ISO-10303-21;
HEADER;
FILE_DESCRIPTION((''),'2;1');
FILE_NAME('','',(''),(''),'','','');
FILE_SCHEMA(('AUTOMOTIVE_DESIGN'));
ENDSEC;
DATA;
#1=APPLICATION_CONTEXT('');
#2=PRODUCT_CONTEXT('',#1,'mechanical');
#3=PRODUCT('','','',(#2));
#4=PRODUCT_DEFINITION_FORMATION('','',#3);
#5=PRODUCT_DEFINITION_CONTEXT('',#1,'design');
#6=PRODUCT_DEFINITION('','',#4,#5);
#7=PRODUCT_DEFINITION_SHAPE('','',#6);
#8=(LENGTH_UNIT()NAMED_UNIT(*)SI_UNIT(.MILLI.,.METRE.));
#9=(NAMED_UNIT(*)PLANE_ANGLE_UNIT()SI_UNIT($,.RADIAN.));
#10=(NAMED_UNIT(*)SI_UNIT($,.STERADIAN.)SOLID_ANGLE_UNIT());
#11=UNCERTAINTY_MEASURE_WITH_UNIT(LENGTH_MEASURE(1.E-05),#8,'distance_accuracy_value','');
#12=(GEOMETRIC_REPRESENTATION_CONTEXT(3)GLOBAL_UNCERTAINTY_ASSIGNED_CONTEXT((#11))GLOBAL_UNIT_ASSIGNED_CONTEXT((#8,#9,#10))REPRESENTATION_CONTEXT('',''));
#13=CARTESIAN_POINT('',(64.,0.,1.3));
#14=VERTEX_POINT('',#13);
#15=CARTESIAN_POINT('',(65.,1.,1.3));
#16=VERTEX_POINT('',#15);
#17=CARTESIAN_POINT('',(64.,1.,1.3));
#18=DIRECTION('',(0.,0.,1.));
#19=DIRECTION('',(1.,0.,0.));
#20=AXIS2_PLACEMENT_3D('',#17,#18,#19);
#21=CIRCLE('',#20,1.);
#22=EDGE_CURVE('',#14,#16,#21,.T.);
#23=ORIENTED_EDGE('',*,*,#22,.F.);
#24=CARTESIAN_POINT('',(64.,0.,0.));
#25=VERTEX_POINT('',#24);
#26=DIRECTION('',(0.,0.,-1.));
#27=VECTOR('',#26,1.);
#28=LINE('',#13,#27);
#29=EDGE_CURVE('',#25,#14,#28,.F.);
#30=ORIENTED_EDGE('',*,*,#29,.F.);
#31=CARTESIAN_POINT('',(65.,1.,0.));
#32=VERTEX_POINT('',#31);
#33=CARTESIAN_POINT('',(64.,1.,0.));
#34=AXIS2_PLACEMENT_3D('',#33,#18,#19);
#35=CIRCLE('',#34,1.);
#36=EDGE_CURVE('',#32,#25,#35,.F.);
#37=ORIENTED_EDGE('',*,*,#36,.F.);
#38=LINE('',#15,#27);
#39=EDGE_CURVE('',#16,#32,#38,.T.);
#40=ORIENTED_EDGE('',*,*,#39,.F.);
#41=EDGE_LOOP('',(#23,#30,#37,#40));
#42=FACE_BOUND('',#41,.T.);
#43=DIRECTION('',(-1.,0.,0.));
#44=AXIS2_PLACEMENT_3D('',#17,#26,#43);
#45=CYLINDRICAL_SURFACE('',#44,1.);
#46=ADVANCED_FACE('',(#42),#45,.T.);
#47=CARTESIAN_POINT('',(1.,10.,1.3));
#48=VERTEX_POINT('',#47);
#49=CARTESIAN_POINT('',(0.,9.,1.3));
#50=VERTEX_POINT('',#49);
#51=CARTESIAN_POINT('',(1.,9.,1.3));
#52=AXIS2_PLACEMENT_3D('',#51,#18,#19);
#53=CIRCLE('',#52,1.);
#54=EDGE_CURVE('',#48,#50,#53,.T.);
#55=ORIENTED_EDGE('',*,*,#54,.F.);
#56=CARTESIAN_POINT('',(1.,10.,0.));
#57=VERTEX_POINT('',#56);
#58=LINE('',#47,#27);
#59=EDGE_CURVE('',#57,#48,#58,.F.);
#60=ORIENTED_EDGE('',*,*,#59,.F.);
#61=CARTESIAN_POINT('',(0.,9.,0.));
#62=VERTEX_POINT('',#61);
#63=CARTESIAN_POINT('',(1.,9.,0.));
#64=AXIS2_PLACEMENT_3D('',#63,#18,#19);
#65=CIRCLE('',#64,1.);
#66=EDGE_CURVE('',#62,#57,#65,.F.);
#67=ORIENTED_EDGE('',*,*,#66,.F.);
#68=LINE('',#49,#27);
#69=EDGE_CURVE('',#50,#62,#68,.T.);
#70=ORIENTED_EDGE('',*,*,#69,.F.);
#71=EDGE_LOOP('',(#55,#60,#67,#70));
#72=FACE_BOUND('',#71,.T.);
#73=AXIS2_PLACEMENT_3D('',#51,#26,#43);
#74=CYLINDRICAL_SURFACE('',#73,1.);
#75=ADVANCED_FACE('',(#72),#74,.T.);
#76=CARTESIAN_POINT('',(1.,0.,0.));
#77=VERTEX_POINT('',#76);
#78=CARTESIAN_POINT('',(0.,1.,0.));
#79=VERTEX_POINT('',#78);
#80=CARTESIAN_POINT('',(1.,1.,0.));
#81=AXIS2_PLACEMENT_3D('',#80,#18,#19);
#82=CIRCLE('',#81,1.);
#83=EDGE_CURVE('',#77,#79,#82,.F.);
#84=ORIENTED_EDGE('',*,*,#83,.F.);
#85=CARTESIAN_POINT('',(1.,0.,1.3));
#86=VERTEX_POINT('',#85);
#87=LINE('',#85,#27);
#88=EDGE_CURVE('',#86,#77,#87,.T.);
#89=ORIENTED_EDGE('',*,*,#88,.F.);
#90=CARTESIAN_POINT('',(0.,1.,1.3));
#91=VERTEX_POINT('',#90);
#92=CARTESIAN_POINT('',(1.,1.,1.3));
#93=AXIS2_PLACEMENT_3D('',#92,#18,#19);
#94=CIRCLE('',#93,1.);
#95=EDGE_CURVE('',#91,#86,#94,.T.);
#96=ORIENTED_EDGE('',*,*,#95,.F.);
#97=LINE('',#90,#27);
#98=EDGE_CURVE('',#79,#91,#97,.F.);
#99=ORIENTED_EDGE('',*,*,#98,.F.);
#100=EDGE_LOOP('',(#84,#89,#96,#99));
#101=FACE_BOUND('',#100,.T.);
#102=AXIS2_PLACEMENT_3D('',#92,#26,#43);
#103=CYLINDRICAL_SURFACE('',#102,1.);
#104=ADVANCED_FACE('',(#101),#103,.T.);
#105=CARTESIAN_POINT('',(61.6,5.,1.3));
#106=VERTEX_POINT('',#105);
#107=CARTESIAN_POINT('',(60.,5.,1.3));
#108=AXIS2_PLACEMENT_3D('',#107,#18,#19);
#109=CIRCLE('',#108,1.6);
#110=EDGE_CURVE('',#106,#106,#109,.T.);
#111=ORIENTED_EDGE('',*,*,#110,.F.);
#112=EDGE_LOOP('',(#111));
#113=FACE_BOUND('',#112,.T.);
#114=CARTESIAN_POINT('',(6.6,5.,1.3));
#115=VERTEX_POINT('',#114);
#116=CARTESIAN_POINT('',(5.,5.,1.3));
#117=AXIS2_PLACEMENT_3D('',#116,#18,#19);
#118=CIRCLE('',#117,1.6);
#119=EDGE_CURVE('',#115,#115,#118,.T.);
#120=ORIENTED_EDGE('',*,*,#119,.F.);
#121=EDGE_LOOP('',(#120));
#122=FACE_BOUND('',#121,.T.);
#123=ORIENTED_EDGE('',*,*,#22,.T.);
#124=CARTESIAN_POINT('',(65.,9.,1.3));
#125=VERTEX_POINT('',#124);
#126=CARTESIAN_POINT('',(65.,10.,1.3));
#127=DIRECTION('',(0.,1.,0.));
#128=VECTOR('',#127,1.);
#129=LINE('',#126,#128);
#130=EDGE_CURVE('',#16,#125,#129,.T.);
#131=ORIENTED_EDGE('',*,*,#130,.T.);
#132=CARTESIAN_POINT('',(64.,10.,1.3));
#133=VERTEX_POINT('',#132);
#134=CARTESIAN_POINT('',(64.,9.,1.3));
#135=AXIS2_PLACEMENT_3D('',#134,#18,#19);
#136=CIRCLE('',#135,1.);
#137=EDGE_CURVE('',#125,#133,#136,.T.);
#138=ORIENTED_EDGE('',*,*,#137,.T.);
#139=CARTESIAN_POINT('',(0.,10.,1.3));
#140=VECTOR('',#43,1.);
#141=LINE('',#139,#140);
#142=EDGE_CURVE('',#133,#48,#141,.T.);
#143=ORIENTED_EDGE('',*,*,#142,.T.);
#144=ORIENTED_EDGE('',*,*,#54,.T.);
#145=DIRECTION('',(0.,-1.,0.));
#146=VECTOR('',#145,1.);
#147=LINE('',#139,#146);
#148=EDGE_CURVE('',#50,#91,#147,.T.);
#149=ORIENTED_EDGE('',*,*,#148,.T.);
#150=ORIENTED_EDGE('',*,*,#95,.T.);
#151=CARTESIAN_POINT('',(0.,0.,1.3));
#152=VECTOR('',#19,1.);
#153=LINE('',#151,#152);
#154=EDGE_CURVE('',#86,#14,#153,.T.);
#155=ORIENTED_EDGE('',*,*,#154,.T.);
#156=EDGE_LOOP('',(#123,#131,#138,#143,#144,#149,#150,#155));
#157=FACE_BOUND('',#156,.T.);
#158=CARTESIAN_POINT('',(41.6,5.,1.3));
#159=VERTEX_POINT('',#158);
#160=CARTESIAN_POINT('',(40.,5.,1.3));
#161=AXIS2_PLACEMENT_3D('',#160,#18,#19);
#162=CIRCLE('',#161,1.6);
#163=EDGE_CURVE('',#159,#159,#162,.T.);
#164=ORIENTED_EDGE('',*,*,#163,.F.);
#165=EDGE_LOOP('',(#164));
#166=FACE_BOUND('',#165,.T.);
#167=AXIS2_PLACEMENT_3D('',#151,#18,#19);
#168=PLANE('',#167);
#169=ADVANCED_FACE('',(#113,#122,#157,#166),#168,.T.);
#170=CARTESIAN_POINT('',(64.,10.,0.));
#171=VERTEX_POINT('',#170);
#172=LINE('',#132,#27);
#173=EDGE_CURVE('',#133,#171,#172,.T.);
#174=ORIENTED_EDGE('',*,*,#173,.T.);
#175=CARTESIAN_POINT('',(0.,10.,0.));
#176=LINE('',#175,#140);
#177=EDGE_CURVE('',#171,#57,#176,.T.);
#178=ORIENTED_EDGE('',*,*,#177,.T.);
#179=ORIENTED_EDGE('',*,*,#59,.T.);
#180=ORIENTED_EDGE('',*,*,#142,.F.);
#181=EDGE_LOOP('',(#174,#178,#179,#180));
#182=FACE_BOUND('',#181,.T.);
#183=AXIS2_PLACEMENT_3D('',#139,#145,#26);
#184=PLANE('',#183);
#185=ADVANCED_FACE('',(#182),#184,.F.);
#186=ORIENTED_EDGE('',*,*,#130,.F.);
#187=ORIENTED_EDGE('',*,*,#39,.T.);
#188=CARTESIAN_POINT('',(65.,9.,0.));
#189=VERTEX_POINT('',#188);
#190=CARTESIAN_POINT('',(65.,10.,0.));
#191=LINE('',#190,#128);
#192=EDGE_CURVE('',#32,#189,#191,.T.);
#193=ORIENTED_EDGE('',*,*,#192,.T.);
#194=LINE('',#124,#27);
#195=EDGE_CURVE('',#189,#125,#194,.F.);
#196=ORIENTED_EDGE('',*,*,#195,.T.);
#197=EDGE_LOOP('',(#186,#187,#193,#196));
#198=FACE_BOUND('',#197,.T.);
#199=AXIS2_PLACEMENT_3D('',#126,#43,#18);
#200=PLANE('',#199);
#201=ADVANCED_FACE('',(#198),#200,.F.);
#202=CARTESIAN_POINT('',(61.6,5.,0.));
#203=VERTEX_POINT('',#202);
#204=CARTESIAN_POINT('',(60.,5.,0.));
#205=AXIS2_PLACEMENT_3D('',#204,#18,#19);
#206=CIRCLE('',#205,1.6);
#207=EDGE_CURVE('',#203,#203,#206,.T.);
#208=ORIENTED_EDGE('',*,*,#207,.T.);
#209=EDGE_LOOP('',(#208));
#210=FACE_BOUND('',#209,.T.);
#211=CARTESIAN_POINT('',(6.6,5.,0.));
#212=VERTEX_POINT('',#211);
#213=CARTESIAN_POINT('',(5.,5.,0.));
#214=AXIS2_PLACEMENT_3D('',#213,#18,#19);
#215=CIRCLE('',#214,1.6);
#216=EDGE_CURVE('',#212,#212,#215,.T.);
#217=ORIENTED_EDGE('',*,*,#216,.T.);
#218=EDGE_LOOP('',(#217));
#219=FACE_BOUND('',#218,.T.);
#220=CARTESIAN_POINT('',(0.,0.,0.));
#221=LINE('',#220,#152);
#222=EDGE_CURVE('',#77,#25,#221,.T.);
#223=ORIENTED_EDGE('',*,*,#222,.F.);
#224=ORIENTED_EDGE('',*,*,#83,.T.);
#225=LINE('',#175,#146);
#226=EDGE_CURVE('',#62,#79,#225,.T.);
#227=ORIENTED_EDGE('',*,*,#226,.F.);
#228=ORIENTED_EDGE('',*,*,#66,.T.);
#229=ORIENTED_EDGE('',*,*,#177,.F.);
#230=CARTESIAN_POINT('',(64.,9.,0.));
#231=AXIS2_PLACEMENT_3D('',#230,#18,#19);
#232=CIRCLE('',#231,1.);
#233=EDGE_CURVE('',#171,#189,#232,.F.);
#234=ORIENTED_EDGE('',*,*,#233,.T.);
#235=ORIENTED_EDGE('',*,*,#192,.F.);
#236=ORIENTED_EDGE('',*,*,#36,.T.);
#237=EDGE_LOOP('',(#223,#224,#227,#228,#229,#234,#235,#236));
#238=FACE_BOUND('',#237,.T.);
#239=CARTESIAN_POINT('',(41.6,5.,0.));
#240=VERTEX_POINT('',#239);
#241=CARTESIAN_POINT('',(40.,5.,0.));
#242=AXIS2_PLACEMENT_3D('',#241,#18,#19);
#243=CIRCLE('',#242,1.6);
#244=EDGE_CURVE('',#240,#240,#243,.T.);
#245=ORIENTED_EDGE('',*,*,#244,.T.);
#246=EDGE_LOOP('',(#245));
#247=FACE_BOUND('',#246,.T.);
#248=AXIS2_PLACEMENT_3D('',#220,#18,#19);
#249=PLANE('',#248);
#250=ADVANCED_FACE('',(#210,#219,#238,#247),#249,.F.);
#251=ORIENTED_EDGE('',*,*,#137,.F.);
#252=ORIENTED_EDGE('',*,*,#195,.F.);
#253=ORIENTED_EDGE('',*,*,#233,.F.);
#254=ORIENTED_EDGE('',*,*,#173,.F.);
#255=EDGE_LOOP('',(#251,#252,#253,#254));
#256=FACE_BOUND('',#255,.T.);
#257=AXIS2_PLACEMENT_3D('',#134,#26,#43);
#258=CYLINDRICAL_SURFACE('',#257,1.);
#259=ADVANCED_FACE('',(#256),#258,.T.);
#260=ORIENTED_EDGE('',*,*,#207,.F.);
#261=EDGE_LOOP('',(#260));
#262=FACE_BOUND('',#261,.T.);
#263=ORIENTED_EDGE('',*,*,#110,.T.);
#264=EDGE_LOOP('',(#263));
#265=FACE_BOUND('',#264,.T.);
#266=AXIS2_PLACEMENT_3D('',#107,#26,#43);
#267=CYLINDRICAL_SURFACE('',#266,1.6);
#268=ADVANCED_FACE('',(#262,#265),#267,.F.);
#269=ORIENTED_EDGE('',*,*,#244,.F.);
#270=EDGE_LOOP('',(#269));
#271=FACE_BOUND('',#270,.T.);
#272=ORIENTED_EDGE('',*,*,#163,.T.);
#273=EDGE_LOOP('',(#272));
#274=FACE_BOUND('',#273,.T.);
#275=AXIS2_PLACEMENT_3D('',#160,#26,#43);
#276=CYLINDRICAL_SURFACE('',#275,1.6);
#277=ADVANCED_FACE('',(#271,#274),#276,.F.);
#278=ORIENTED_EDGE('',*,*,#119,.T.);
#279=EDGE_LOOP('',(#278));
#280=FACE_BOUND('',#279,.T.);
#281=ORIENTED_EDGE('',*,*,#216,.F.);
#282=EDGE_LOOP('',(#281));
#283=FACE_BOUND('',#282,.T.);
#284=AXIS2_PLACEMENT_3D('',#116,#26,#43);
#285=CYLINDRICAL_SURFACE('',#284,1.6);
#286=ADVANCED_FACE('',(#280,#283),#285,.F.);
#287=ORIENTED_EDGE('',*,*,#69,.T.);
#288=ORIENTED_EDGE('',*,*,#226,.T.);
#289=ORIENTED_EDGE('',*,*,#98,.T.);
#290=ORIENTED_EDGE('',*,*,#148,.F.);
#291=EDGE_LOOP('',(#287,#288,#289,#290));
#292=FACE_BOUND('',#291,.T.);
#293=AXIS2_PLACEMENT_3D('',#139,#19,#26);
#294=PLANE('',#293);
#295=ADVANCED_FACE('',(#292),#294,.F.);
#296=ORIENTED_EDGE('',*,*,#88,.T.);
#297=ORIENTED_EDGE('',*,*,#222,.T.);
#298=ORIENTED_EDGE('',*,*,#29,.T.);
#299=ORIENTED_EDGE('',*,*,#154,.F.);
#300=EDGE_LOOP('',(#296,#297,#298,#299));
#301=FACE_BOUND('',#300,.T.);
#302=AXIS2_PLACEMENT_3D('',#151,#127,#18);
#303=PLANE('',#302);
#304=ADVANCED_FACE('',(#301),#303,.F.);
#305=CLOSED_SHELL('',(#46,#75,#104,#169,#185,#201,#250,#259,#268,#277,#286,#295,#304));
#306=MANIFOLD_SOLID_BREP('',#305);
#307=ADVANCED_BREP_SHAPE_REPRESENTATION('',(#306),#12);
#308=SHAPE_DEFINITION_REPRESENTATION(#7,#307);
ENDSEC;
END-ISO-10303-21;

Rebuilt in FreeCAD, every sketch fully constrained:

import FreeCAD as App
import Part
import Sketcher
from FreeCAD import Vector


def edges_at(feature, points):
    """Names of the edges that pass closest to the given points."""
    edges = feature.Shape.Edges
    near = lambda p: min(range(len(edges)), key=lambda i: edges[i].distToShape(Part.Vertex(*p))[0])
    return sorted({f"Edge{near(p) + 1}" for p in points})


def add_polygon(sketch, points):
    """Adds a closed chain of lines whose ends are joined by coincident constraints."""
    first, n = sketch.GeometryCount, len(points)
    for a, b in zip(points, points[1:] + points[:1]):
        sketch.addGeometry(Part.LineSegment(App.Vector(*a, 0), App.Vector(*b, 0)), False)
    for i in range(n):
        sketch.addConstraint(Sketcher.Constraint("Coincident", first + i, 2, first + (i + 1) % n, 1))

doc = App.newDocument("Part")
params = doc.addObject("Spreadsheet::Sheet", "Params")
for row, (alias, value) in enumerate([
    ("sketch1_diameter", "3.2 mm"),
    ("sketch1_width", "65 mm"),
    ("sketch1_height", "10 mm"),
    ("pad1_length", "1.3 mm"),
    ("fillet_radius", "1 mm"),
], start=1):
    params.set(f"A{row}", alias)
    params.set(f"B{row}", "=" + value)
    params.setAlias(f"B{row}", alias)

body = doc.addObject("PartDesign::Body", "Body")

# Sketch on XY plane
sketch1 = doc.addObject("Sketcher::SketchObject", "Sketch")
body.addObject(sketch1)
sketch1.AttachmentSupport = (doc.XY_Plane, [""])
sketch1.MapMode = "FlatFace"
add_polygon(sketch1, [(0, 10), (0, 0), (65, 0), (65, 10)])  # lines 0-3
sketch1.addGeometry(Part.Circle(Vector(5, 5, 0), Vector(0, 0, 1), 1.6), False)  # 4
sketch1.addGeometry(Part.Circle(Vector(40, 5, 0), Vector(0, 0, 1), 1.6), False)  # 5
sketch1.addGeometry(Part.Circle(Vector(60, 5, 0), Vector(0, 0, 1), 1.6), False)  # 6
sketch1.addConstraint([
    Sketcher.Constraint("Vertical", 0),
    Sketcher.Constraint("Horizontal", 1),
    Sketcher.Constraint("Vertical", 2),
    Sketcher.Constraint("Horizontal", 3),
    Sketcher.Constraint("Coincident", 0, 2, -1, 1),
    Sketcher.Constraint("Equal", 4, 5),
    Sketcher.Constraint("Equal", 5, 6),
    Sketcher.Constraint("Horizontal", 4, 3, 5, 3),
    Sketcher.Constraint("Horizontal", 5, 3, 6, 3),
    Sketcher.Constraint("Diameter", 4, 3.2),
    Sketcher.Constraint("DistanceX", 1, 1, 1, 2, 65.0),
    Sketcher.Constraint("DistanceY", 0, 2, 0, 1, 10.0),
    Sketcher.Constraint("DistanceX", -1, 1, 4, 3, 5.0),
    Sketcher.Constraint("DistanceY", -1, 1, 4, 3, 5.0),
    Sketcher.Constraint("DistanceX", -1, 1, 5, 3, 40.0),
    Sketcher.Constraint("DistanceX", -1, 1, 6, 3, 60.0),
])
sketch1.setExpression("Constraints[13]", "Params.sketch1_diameter")
sketch1.setExpression("Constraints[14]", "Params.sketch1_width")
sketch1.setExpression("Constraints[15]", "Params.sketch1_height")
pad1 = doc.addObject("PartDesign::Pad", "Pad")
body.addObject(pad1)
pad1.Profile = sketch1
pad1.setExpression("Length", "Params.pad1_length")
doc.recompute()

fillet = doc.addObject("PartDesign::Fillet", "Fillet")
body.addObject(fillet)
fillet.Base = (pad1, edges_at(pad1, [
    (0, 10, 0.65),
    (65, 10, 0.65),
    (65, 0, 0.65),
    (0, 0, 0.65),
]))
fillet.setExpression("Radius", "Params.fillet_radius")

doc.recompute()
